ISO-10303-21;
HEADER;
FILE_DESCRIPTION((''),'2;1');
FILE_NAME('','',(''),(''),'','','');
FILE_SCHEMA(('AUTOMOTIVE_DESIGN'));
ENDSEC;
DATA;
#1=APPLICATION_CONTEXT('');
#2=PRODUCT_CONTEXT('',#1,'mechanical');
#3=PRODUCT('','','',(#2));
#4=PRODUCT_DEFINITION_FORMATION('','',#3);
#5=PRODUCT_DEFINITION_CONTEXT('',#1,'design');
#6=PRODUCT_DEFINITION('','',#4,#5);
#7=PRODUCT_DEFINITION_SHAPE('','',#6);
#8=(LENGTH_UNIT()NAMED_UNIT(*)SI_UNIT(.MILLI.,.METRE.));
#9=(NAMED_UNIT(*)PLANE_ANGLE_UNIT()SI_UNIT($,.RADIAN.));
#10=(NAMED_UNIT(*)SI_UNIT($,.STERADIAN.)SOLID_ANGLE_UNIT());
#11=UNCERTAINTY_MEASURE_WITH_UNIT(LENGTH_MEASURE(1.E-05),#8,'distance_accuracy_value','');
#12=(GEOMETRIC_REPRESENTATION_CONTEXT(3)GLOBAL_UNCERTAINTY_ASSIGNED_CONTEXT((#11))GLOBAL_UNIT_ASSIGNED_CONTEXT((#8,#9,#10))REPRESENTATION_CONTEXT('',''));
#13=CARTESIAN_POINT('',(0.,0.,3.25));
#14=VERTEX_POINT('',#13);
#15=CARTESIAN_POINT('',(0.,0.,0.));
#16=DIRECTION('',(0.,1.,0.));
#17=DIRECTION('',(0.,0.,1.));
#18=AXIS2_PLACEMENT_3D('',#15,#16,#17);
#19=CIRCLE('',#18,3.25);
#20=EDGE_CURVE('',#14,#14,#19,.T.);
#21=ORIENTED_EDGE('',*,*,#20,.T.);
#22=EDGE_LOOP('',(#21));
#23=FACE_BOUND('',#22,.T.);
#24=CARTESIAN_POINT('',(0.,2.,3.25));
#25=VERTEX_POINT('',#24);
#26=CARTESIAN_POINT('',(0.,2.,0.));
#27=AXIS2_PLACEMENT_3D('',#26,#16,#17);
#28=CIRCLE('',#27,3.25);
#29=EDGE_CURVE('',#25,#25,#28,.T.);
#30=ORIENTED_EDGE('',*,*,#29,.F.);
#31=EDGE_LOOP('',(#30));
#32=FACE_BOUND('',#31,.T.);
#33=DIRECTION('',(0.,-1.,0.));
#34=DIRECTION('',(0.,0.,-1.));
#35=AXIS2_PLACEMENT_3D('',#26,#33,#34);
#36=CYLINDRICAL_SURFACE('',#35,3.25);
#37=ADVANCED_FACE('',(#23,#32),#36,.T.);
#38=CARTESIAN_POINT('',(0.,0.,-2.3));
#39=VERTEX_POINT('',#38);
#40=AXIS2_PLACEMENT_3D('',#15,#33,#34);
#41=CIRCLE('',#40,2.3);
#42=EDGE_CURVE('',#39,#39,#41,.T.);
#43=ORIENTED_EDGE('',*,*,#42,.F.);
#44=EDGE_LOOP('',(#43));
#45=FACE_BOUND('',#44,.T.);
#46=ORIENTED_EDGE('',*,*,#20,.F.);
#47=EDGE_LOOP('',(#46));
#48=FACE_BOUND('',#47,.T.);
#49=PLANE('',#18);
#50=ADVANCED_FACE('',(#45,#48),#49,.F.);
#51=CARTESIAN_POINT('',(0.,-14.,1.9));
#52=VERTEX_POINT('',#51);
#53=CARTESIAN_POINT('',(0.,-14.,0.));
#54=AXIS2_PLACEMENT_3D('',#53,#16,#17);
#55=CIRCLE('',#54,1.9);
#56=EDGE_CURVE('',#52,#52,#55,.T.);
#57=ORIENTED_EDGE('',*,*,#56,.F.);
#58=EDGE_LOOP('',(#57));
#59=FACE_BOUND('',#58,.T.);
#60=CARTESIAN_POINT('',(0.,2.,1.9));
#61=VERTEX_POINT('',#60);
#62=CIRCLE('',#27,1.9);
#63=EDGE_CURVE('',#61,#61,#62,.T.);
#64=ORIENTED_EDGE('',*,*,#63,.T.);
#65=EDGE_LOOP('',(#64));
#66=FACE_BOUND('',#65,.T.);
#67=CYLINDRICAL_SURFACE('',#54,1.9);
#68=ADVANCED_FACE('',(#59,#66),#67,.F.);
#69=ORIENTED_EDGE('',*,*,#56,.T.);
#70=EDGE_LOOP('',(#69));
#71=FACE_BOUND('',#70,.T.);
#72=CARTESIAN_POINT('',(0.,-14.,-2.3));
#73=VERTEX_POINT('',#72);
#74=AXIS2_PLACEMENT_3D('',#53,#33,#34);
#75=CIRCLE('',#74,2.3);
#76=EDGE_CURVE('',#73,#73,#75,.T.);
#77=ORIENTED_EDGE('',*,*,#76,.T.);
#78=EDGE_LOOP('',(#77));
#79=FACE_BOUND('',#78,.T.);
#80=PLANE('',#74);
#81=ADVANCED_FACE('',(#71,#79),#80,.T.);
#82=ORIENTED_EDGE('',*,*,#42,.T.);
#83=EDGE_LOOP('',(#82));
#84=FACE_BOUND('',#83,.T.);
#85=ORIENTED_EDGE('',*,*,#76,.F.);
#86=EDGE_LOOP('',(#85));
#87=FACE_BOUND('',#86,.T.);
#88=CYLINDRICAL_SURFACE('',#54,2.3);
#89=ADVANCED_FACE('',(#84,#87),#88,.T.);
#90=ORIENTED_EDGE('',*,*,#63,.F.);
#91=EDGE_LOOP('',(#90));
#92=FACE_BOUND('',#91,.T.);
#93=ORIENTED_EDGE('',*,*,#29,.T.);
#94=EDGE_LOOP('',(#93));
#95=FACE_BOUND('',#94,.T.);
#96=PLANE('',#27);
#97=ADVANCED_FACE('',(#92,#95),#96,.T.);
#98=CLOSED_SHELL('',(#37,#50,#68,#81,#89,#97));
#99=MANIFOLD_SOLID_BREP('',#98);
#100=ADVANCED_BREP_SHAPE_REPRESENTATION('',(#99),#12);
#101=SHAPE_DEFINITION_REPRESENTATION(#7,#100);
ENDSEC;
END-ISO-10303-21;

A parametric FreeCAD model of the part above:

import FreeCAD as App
import Part
import Sketcher

doc = App.newDocument("Part")
body = doc.addObject("PartDesign::Body", "Body")

# Sketch on XZ plane
sketch1 = body.newObject("Sketcher::SketchObject", "Sketch")
sketch1.AttachmentSupport = (doc.getObject("XZ_Plane"), [""])
sketch1.MapMode = "FlatFace"
sketch1.addGeometry(Part.Circle(App.Vector(0, 0, 0), App.Vector(0, 0, 1), 3.2), False)
sketch1.addConstraint([
    Sketcher.Constraint("Coincident", 0, 3, -1, 1),
    Sketcher.Constraint("Diameter", 0, 6.5),
])
pad1 = body.newObject("PartDesign::Pad", "Pad")
pad1.Profile = sketch1
pad1.Length = 2
pad1.Reversed = True

# Sketch on XZ plane
sketch2 = body.newObject("Sketcher::SketchObject", "Sketch001")
sketch2.AttachmentSupport = (doc.getObject("XZ_Plane"), [""])
sketch2.MapMode = "FlatFace"
sketch2.addGeometry(Part.Circle(App.Vector(0, 0, 0), App.Vector(0, 0, 1), 2.3), False)
sketch2.addConstraint([
    Sketcher.Constraint("Coincident", 0, 3, -1, 1),
    Sketcher.Constraint("Diameter", 0, 4.6),
])
pad2 = body.newObject("PartDesign::Pad", "Pad001")
pad2.Profile = sketch2
pad2.Length = 14

# Sketch on XZ plane
sketch3 = body.newObject("Sketcher::SketchObject", "Sketch002")
sketch3.AttachmentSupport = (doc.getObject("XZ_Plane"), [""])
sketch3.MapMode = "FlatFace"
sketch3.AttachmentOffset = App.Placement(App.Vector(0, 0, -2), App.Rotation())
sketch3.addGeometry(Part.Circle(App.Vector(0, 0, 0), App.Vector(0, 0, 1), 1.9), False)
sketch3.addConstraint([
    Sketcher.Constraint("Coincident", 0, 3, -1, 1),
    Sketcher.Constraint("Diameter", 0, 3.8),
])
pocket1 = body.newObject("PartDesign::Pocket", "Pocket")
pocket1.Profile = sketch3
pocket1.Type = "ThroughAll"
pocket1.Reversed = True

doc.recompute()
